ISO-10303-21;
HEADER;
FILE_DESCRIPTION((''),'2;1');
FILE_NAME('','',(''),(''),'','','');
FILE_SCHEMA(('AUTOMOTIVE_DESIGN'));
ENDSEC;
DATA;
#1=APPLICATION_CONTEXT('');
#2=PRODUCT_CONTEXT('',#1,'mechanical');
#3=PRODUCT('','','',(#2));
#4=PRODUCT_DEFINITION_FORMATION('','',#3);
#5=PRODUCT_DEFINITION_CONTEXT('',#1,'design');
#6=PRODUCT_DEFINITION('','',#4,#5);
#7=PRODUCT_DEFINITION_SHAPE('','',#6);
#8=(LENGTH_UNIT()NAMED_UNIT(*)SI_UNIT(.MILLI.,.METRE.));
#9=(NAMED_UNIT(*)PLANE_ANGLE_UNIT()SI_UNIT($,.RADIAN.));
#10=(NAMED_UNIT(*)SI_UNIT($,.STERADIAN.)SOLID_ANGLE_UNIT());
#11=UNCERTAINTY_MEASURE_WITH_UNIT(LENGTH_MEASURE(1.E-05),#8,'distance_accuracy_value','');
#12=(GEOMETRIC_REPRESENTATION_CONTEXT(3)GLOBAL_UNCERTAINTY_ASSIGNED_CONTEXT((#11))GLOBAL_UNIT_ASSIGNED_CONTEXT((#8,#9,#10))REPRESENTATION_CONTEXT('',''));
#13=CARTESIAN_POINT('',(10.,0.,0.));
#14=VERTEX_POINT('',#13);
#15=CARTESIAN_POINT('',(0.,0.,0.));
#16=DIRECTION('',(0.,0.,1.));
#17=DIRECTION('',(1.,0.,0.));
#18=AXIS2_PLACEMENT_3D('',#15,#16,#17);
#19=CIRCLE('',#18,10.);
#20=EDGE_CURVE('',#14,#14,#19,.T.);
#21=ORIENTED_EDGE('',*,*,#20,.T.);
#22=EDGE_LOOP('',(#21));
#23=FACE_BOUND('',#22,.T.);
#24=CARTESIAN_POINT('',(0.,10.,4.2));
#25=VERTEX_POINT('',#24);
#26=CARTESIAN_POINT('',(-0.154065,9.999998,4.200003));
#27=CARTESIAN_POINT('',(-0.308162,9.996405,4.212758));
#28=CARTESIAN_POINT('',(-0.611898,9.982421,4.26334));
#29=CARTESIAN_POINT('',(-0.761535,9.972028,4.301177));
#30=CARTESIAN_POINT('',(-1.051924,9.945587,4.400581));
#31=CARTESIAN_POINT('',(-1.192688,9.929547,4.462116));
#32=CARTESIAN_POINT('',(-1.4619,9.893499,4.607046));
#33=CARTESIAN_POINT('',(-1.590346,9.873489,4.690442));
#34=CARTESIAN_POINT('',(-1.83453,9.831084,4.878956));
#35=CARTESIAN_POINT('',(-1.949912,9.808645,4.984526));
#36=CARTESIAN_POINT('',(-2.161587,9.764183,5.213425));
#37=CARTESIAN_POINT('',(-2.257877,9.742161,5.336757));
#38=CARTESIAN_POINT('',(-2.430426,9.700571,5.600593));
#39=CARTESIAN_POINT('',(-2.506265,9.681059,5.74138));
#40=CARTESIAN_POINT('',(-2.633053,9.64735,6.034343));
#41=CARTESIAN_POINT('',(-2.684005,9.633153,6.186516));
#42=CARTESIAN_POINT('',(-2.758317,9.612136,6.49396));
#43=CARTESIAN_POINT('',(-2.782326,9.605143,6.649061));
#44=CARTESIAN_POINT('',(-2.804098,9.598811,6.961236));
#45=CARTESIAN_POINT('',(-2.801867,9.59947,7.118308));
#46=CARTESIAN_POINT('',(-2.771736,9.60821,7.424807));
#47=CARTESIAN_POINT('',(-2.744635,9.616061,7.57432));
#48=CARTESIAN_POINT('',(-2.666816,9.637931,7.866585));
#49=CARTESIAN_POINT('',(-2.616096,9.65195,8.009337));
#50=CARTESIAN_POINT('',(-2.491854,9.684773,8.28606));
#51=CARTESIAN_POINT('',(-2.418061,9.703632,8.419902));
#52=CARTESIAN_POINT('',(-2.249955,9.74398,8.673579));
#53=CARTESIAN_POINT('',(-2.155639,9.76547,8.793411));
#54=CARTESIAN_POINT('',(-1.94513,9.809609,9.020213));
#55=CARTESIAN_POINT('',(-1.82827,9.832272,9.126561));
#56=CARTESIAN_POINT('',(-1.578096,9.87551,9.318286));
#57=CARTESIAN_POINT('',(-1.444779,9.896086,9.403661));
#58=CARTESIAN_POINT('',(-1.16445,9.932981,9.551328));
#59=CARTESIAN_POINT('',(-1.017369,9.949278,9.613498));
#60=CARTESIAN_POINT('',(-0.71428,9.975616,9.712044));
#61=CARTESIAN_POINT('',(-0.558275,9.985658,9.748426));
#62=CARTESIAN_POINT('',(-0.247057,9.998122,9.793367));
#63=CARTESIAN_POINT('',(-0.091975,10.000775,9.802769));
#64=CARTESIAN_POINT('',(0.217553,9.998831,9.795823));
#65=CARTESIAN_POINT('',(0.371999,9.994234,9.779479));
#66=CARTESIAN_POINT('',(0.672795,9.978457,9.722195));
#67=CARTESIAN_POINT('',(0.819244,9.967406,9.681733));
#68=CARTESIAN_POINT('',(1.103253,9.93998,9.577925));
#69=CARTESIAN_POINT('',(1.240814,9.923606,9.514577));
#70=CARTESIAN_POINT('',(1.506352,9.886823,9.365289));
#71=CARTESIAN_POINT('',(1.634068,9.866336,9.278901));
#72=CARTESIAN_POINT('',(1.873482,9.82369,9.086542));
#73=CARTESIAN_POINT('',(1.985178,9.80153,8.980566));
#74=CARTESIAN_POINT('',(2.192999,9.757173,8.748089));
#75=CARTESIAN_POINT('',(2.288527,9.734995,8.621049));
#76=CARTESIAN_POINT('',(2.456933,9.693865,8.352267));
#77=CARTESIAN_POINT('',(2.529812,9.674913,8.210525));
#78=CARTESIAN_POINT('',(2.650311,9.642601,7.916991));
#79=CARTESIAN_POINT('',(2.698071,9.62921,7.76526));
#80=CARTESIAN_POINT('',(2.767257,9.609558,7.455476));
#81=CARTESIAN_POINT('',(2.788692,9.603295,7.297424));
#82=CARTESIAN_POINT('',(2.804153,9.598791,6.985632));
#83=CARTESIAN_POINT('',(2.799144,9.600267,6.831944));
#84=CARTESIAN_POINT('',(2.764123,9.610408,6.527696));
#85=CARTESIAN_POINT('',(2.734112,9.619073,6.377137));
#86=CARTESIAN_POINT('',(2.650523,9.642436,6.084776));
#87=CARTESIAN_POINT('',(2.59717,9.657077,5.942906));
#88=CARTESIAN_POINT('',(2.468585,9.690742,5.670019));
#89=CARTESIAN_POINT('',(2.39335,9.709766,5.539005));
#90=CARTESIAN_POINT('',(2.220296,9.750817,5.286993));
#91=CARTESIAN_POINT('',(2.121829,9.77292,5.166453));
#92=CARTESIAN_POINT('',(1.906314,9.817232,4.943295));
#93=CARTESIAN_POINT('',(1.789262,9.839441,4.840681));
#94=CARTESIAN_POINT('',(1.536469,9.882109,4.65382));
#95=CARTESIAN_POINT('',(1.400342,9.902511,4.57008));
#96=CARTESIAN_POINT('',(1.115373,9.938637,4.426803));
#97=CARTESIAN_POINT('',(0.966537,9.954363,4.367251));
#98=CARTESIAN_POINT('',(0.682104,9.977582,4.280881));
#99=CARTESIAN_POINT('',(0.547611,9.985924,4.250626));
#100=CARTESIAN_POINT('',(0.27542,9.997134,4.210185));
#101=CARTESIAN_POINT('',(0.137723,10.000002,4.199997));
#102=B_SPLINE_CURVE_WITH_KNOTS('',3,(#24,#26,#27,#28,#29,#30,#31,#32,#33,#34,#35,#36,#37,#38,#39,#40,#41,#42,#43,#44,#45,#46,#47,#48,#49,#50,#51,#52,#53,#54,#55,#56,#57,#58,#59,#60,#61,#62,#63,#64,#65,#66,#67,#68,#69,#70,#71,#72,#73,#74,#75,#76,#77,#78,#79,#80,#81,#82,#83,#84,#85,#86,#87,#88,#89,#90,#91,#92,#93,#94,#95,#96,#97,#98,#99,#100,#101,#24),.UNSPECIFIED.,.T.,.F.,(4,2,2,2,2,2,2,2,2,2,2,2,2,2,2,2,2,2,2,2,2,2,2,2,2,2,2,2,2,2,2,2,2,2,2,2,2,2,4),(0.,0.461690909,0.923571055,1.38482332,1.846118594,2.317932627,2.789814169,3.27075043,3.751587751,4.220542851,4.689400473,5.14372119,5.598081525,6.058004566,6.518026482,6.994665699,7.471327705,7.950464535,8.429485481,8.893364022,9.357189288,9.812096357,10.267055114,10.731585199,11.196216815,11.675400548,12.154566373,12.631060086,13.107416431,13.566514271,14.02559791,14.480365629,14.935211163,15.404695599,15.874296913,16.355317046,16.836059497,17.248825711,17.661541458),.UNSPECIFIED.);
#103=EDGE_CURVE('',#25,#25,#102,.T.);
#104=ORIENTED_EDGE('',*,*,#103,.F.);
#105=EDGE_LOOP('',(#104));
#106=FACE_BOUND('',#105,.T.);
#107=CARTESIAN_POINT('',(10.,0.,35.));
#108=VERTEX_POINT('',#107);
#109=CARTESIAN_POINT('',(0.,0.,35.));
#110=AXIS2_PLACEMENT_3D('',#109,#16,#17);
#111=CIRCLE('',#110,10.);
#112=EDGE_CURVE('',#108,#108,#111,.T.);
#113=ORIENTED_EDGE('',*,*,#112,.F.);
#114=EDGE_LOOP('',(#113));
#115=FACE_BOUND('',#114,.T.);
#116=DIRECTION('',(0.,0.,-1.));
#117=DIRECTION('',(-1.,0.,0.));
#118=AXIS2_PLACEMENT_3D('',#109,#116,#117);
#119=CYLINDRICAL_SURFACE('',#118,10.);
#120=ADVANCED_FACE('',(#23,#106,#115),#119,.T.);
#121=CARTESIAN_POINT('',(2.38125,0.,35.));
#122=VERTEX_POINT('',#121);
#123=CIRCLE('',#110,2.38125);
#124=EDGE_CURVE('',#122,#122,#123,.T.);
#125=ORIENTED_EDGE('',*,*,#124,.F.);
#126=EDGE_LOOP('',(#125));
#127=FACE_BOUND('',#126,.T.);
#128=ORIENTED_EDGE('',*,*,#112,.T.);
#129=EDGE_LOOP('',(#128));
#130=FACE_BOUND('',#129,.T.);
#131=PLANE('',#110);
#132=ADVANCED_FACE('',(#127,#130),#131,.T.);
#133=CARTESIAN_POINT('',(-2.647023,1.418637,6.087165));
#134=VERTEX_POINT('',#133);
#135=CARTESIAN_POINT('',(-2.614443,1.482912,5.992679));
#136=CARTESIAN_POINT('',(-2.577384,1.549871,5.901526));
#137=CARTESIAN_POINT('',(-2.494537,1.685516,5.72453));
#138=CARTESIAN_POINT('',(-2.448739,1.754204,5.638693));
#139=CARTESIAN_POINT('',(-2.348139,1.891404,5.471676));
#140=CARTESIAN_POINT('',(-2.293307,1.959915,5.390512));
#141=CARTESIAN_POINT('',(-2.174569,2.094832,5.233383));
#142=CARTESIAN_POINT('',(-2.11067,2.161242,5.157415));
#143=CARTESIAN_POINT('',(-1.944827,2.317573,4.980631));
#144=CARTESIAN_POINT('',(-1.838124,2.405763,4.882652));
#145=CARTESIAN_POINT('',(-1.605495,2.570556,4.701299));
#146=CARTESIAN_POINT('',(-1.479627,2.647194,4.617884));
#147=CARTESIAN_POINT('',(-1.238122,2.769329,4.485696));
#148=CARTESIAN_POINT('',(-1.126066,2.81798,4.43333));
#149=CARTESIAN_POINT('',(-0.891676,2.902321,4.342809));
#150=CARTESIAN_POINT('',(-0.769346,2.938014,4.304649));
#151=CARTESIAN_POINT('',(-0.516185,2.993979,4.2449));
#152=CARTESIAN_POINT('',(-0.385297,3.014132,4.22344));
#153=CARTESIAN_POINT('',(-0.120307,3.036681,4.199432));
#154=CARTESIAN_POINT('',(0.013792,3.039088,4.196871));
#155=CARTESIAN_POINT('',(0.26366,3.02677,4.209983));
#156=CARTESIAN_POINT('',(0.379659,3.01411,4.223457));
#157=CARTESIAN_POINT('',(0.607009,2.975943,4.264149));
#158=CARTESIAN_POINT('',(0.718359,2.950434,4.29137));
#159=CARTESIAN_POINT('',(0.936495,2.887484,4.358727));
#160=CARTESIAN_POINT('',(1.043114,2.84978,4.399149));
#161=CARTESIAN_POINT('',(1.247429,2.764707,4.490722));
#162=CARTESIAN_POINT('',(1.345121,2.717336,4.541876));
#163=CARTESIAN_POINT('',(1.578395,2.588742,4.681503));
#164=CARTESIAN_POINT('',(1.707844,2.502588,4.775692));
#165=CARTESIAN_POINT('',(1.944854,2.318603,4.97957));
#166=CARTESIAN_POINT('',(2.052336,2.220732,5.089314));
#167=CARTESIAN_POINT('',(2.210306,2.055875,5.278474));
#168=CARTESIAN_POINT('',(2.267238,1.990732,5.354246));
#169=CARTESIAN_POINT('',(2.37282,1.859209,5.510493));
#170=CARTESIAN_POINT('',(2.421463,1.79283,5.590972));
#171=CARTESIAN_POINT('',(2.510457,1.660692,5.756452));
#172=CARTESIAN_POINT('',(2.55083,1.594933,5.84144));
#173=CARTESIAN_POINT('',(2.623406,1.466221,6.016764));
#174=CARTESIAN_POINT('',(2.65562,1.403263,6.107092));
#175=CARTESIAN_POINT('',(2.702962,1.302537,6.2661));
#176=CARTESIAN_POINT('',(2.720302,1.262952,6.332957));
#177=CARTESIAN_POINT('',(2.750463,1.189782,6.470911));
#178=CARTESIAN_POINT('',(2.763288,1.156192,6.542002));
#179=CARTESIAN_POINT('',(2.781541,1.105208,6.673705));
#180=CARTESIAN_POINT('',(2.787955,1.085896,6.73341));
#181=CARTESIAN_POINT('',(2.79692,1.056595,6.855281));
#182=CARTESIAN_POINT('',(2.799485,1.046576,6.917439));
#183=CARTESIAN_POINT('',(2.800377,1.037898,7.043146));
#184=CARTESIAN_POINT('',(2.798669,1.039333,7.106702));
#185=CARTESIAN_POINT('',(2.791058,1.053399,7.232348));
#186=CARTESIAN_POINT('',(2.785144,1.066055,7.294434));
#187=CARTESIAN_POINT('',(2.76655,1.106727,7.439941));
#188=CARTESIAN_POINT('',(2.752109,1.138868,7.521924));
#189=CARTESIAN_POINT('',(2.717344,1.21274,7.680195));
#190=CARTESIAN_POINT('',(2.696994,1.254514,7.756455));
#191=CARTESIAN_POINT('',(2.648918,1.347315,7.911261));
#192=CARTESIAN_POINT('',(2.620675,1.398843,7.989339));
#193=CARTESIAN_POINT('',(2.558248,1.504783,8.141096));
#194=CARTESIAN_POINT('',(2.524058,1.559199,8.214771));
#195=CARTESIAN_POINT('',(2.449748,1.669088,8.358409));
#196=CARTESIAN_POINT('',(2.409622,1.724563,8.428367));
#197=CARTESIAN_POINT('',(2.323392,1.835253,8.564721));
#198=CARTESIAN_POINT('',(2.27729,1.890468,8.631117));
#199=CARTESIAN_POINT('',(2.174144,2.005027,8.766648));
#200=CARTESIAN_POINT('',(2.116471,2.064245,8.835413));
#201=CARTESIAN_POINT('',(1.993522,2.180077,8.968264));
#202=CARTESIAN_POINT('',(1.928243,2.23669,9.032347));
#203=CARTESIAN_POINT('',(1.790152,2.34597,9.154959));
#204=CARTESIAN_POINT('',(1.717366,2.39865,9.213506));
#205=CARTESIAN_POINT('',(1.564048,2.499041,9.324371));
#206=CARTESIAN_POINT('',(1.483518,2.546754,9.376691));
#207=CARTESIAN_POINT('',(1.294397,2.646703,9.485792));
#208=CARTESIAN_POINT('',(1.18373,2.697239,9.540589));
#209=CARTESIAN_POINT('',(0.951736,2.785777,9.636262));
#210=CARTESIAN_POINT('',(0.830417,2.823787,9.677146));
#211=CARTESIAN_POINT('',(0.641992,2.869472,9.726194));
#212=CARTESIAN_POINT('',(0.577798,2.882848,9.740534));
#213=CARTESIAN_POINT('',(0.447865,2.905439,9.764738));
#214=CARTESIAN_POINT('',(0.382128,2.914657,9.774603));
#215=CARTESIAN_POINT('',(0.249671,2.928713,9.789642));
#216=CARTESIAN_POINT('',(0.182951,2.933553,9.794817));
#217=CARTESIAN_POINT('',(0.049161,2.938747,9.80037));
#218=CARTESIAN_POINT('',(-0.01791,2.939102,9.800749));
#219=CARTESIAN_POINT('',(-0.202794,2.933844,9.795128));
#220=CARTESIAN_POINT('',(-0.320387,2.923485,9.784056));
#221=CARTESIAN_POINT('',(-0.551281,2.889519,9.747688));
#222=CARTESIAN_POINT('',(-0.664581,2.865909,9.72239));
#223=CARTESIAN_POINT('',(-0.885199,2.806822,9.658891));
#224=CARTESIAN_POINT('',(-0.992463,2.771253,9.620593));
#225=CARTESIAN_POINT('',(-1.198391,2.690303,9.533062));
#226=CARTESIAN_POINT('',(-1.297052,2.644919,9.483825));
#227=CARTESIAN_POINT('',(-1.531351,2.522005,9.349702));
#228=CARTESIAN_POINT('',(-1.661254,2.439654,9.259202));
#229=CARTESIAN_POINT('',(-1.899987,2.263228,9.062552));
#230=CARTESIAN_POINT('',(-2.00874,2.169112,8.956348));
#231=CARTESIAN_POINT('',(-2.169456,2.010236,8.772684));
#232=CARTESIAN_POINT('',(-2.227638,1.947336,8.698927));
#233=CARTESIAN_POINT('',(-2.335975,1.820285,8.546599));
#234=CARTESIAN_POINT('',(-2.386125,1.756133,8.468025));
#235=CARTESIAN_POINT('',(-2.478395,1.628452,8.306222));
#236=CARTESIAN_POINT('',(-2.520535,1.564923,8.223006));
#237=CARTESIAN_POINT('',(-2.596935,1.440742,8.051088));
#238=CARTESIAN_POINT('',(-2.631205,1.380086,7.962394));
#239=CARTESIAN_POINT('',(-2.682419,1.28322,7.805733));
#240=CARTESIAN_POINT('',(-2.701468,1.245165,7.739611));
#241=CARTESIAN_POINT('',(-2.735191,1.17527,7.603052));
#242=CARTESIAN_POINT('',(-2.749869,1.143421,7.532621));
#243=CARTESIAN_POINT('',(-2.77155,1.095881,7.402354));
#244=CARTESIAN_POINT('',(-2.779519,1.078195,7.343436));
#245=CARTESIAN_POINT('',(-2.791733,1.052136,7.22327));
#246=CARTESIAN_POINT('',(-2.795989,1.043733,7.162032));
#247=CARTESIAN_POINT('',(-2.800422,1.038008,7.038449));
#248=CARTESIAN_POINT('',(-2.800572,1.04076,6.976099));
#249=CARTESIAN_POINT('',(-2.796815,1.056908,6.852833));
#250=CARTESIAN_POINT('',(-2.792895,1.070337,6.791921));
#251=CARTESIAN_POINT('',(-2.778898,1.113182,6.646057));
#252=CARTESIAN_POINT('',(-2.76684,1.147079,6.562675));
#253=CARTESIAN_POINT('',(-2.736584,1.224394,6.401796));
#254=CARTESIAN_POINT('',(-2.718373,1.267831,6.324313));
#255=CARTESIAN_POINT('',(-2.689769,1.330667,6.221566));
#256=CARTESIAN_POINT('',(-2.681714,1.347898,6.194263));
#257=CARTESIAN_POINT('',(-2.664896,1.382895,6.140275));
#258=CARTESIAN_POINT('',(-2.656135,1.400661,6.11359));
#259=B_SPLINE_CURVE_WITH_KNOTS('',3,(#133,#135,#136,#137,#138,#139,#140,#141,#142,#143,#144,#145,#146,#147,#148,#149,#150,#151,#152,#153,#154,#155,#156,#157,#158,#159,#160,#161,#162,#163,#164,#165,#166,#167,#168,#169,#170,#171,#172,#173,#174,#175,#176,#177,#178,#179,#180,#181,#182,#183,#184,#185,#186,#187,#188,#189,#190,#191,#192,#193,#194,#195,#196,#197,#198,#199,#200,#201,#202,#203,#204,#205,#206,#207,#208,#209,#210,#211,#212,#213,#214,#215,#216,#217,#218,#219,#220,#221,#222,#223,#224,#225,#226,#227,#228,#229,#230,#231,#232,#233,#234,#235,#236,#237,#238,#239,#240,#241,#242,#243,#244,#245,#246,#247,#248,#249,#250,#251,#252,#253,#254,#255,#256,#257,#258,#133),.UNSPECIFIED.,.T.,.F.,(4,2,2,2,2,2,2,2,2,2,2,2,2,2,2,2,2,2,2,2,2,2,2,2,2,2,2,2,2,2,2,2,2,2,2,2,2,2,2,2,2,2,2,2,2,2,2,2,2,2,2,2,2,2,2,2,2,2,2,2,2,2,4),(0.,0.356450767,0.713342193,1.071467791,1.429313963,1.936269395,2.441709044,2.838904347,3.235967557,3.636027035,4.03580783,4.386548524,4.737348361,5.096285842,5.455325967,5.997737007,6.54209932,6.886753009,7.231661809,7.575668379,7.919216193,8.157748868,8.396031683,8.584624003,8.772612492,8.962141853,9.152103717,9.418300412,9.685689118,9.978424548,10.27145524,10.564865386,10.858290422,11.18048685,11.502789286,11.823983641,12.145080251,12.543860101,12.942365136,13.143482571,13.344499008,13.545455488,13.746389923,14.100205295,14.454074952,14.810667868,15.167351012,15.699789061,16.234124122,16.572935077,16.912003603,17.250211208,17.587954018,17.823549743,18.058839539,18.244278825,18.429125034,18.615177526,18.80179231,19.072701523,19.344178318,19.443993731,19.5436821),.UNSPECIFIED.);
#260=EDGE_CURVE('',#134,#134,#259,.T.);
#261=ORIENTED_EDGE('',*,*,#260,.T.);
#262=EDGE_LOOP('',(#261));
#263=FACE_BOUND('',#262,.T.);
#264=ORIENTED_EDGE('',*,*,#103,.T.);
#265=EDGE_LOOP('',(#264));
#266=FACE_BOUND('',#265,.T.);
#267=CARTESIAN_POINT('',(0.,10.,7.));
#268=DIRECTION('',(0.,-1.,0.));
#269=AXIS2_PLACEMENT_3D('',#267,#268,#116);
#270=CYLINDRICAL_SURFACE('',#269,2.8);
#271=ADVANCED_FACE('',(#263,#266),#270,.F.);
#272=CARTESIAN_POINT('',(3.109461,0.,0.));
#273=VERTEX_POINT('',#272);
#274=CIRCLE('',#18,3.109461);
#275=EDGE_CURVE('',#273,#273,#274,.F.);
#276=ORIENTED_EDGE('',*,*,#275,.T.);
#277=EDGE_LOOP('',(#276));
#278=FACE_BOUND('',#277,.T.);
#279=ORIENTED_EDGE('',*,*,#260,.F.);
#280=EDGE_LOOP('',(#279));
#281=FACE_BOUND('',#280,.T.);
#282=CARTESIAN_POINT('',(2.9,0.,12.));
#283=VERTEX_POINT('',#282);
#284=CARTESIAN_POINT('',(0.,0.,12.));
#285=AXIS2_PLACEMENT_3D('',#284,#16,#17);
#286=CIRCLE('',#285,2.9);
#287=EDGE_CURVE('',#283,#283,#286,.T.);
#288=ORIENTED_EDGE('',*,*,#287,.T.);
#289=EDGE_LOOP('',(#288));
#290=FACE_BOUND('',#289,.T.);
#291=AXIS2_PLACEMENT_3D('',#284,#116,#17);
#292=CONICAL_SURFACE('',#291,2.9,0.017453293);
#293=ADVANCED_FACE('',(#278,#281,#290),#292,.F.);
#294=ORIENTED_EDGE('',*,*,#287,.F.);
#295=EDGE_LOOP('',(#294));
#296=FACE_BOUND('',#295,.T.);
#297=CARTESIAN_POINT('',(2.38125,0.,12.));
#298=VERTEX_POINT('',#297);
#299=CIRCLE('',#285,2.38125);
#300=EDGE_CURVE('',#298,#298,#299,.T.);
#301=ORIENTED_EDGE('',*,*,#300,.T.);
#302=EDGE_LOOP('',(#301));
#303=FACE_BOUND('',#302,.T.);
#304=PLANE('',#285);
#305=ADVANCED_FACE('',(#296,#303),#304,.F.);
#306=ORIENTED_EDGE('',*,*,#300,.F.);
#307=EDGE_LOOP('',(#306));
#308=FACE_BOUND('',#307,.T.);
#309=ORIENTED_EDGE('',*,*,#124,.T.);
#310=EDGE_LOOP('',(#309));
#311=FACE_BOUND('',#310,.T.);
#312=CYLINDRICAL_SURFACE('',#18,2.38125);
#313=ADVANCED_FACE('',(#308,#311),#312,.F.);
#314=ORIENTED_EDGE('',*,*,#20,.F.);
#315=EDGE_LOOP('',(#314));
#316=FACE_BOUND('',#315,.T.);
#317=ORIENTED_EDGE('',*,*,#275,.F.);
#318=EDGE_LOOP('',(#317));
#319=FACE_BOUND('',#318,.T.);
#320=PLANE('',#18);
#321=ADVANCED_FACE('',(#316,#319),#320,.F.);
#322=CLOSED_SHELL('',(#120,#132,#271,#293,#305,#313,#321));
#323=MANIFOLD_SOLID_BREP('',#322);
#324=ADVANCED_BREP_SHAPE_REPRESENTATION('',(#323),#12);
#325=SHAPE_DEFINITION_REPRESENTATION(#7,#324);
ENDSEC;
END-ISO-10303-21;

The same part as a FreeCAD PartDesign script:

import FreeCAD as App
import Part
import Sketcher
from FreeCAD import Vector


def faces_at(feature, points):
    """Names of the faces that lie closest to the given points."""
    faces = feature.Shape.Faces
    near = lambda p: min(range(len(faces)), key=lambda i: faces[i].distToShape(Part.Vertex(*p))[0])
    return sorted({f"Face{near(p) + 1}" for p in points})

doc = App.newDocument("Part")
body = doc.addObject("PartDesign::Body", "Body")

sketch1 = body.newObject("Sketcher::SketchObject", "Sketch")
sketch1.AttachmentSupport = (doc.getObject("XY_Plane"), [""])
sketch1.MapMode = "FlatFace"
sketch1.addGeometry(Part.Circle(Vector(0, 0, 0), Vector(0, 0, 1), 10), False)
sketch1.addConstraint([
    Sketcher.Constraint("Coincident", 0, 3, -1, 1),
    Sketcher.Constraint("Diameter", 0, 20.0),
])
pad1 = body.newObject("PartDesign::Pad", "Pad")
pad1.Profile = sketch1
pad1.Length = 35
body2 = doc.addObject("PartDesign::Body", "Body001")

sketch2 = body2.newObject("Sketcher::SketchObject", "Sketch001")
sketch2.AttachmentSupport = (doc.getObject("XY_Plane001"), [""])
sketch2.MapMode = "FlatFace"
sketch2.AttachmentOffset = App.Placement(Vector(0, 0, 12), App.Rotation())
sketch2.addGeometry(Part.Circle(Vector(0, 0, 0), Vector(0, 0, 1), 2.9), False)
sketch2.addConstraint([
    Sketcher.Constraint("Coincident", 0, 3, -1, 1),
    Sketcher.Constraint("Diameter", 0, 5.8),
])
pad2 = body2.newObject("PartDesign::Pad", "Pad001")
pad2.Profile = sketch2
pad2.Length = 12
pad2.Reversed = True
doc.recompute()

datumplane = body2.newObject("PartDesign::Plane", "DatumPlane")
datumplane.AttachmentSupport = (doc.getObject("XY_Plane001"), [""])
datumplane.MapMode = "FlatFace"
datumplane.AttachmentOffset = App.Placement(Vector(0, 0, 12), App.Rotation())
draft = body2.newObject("PartDesign::Draft", "Draft")
draft.Base = (pad2, faces_at(pad2, [(-2.9, 0, 6)]))
draft.NeutralPlane = (datumplane, [""])
draft.Angle = 1
draft.Reversed = False
doc.recompute()

boolean = body.newObject("PartDesign::Boolean", "Boolean")
boolean.Type = "Cut"
boolean.addObjects([body2])

sketch3 = body.newObject("Sketcher::SketchObject", "Sketch002")
sketch3.AttachmentSupport = (doc.getObject("XY_Plane"), [""])
sketch3.MapMode = "FlatFace"
sketch3.AttachmentOffset = App.Placement(Vector(0, 0, 35), App.Rotation())
sketch3.addGeometry(Part.Circle(Vector(0, 0, 0), Vector(0, 0, 1), 2.4), False)
sketch3.addConstraint([
    Sketcher.Constraint("Coincident", 0, 3, -1, 1),
    Sketcher.Constraint("Diameter", 0, 4.7625),
])
pocket1 = body.newObject("PartDesign::Pocket", "Pocket")
pocket1.Profile = sketch3
pocket1.Length = 35

sketch4 = body.newObject("Sketcher::SketchObject", "Sketch003")
sketch4.AttachmentSupport = (doc.getObject("XZ_Plane"), [""])
sketch4.MapMode = "FlatFace"
sketch4.addGeometry(Part.Circle(Vector(0, 7, 0), Vector(0, 0, 1), 2.8), False)
sketch4.addConstraint([
    Sketcher.Constraint("PointOnObject", 0, 3, -2),
    Sketcher.Constraint("Diameter", 0, 5.6),
    Sketcher.Constraint("DistanceY", -1, 1, 0, 3, 7.0),
])
pocket2 = body.newObject("PartDesign::Pocket", "Pocket001")
pocket2.Profile = sketch4
pocket2.Type = "ThroughAll"

doc.recompute()
